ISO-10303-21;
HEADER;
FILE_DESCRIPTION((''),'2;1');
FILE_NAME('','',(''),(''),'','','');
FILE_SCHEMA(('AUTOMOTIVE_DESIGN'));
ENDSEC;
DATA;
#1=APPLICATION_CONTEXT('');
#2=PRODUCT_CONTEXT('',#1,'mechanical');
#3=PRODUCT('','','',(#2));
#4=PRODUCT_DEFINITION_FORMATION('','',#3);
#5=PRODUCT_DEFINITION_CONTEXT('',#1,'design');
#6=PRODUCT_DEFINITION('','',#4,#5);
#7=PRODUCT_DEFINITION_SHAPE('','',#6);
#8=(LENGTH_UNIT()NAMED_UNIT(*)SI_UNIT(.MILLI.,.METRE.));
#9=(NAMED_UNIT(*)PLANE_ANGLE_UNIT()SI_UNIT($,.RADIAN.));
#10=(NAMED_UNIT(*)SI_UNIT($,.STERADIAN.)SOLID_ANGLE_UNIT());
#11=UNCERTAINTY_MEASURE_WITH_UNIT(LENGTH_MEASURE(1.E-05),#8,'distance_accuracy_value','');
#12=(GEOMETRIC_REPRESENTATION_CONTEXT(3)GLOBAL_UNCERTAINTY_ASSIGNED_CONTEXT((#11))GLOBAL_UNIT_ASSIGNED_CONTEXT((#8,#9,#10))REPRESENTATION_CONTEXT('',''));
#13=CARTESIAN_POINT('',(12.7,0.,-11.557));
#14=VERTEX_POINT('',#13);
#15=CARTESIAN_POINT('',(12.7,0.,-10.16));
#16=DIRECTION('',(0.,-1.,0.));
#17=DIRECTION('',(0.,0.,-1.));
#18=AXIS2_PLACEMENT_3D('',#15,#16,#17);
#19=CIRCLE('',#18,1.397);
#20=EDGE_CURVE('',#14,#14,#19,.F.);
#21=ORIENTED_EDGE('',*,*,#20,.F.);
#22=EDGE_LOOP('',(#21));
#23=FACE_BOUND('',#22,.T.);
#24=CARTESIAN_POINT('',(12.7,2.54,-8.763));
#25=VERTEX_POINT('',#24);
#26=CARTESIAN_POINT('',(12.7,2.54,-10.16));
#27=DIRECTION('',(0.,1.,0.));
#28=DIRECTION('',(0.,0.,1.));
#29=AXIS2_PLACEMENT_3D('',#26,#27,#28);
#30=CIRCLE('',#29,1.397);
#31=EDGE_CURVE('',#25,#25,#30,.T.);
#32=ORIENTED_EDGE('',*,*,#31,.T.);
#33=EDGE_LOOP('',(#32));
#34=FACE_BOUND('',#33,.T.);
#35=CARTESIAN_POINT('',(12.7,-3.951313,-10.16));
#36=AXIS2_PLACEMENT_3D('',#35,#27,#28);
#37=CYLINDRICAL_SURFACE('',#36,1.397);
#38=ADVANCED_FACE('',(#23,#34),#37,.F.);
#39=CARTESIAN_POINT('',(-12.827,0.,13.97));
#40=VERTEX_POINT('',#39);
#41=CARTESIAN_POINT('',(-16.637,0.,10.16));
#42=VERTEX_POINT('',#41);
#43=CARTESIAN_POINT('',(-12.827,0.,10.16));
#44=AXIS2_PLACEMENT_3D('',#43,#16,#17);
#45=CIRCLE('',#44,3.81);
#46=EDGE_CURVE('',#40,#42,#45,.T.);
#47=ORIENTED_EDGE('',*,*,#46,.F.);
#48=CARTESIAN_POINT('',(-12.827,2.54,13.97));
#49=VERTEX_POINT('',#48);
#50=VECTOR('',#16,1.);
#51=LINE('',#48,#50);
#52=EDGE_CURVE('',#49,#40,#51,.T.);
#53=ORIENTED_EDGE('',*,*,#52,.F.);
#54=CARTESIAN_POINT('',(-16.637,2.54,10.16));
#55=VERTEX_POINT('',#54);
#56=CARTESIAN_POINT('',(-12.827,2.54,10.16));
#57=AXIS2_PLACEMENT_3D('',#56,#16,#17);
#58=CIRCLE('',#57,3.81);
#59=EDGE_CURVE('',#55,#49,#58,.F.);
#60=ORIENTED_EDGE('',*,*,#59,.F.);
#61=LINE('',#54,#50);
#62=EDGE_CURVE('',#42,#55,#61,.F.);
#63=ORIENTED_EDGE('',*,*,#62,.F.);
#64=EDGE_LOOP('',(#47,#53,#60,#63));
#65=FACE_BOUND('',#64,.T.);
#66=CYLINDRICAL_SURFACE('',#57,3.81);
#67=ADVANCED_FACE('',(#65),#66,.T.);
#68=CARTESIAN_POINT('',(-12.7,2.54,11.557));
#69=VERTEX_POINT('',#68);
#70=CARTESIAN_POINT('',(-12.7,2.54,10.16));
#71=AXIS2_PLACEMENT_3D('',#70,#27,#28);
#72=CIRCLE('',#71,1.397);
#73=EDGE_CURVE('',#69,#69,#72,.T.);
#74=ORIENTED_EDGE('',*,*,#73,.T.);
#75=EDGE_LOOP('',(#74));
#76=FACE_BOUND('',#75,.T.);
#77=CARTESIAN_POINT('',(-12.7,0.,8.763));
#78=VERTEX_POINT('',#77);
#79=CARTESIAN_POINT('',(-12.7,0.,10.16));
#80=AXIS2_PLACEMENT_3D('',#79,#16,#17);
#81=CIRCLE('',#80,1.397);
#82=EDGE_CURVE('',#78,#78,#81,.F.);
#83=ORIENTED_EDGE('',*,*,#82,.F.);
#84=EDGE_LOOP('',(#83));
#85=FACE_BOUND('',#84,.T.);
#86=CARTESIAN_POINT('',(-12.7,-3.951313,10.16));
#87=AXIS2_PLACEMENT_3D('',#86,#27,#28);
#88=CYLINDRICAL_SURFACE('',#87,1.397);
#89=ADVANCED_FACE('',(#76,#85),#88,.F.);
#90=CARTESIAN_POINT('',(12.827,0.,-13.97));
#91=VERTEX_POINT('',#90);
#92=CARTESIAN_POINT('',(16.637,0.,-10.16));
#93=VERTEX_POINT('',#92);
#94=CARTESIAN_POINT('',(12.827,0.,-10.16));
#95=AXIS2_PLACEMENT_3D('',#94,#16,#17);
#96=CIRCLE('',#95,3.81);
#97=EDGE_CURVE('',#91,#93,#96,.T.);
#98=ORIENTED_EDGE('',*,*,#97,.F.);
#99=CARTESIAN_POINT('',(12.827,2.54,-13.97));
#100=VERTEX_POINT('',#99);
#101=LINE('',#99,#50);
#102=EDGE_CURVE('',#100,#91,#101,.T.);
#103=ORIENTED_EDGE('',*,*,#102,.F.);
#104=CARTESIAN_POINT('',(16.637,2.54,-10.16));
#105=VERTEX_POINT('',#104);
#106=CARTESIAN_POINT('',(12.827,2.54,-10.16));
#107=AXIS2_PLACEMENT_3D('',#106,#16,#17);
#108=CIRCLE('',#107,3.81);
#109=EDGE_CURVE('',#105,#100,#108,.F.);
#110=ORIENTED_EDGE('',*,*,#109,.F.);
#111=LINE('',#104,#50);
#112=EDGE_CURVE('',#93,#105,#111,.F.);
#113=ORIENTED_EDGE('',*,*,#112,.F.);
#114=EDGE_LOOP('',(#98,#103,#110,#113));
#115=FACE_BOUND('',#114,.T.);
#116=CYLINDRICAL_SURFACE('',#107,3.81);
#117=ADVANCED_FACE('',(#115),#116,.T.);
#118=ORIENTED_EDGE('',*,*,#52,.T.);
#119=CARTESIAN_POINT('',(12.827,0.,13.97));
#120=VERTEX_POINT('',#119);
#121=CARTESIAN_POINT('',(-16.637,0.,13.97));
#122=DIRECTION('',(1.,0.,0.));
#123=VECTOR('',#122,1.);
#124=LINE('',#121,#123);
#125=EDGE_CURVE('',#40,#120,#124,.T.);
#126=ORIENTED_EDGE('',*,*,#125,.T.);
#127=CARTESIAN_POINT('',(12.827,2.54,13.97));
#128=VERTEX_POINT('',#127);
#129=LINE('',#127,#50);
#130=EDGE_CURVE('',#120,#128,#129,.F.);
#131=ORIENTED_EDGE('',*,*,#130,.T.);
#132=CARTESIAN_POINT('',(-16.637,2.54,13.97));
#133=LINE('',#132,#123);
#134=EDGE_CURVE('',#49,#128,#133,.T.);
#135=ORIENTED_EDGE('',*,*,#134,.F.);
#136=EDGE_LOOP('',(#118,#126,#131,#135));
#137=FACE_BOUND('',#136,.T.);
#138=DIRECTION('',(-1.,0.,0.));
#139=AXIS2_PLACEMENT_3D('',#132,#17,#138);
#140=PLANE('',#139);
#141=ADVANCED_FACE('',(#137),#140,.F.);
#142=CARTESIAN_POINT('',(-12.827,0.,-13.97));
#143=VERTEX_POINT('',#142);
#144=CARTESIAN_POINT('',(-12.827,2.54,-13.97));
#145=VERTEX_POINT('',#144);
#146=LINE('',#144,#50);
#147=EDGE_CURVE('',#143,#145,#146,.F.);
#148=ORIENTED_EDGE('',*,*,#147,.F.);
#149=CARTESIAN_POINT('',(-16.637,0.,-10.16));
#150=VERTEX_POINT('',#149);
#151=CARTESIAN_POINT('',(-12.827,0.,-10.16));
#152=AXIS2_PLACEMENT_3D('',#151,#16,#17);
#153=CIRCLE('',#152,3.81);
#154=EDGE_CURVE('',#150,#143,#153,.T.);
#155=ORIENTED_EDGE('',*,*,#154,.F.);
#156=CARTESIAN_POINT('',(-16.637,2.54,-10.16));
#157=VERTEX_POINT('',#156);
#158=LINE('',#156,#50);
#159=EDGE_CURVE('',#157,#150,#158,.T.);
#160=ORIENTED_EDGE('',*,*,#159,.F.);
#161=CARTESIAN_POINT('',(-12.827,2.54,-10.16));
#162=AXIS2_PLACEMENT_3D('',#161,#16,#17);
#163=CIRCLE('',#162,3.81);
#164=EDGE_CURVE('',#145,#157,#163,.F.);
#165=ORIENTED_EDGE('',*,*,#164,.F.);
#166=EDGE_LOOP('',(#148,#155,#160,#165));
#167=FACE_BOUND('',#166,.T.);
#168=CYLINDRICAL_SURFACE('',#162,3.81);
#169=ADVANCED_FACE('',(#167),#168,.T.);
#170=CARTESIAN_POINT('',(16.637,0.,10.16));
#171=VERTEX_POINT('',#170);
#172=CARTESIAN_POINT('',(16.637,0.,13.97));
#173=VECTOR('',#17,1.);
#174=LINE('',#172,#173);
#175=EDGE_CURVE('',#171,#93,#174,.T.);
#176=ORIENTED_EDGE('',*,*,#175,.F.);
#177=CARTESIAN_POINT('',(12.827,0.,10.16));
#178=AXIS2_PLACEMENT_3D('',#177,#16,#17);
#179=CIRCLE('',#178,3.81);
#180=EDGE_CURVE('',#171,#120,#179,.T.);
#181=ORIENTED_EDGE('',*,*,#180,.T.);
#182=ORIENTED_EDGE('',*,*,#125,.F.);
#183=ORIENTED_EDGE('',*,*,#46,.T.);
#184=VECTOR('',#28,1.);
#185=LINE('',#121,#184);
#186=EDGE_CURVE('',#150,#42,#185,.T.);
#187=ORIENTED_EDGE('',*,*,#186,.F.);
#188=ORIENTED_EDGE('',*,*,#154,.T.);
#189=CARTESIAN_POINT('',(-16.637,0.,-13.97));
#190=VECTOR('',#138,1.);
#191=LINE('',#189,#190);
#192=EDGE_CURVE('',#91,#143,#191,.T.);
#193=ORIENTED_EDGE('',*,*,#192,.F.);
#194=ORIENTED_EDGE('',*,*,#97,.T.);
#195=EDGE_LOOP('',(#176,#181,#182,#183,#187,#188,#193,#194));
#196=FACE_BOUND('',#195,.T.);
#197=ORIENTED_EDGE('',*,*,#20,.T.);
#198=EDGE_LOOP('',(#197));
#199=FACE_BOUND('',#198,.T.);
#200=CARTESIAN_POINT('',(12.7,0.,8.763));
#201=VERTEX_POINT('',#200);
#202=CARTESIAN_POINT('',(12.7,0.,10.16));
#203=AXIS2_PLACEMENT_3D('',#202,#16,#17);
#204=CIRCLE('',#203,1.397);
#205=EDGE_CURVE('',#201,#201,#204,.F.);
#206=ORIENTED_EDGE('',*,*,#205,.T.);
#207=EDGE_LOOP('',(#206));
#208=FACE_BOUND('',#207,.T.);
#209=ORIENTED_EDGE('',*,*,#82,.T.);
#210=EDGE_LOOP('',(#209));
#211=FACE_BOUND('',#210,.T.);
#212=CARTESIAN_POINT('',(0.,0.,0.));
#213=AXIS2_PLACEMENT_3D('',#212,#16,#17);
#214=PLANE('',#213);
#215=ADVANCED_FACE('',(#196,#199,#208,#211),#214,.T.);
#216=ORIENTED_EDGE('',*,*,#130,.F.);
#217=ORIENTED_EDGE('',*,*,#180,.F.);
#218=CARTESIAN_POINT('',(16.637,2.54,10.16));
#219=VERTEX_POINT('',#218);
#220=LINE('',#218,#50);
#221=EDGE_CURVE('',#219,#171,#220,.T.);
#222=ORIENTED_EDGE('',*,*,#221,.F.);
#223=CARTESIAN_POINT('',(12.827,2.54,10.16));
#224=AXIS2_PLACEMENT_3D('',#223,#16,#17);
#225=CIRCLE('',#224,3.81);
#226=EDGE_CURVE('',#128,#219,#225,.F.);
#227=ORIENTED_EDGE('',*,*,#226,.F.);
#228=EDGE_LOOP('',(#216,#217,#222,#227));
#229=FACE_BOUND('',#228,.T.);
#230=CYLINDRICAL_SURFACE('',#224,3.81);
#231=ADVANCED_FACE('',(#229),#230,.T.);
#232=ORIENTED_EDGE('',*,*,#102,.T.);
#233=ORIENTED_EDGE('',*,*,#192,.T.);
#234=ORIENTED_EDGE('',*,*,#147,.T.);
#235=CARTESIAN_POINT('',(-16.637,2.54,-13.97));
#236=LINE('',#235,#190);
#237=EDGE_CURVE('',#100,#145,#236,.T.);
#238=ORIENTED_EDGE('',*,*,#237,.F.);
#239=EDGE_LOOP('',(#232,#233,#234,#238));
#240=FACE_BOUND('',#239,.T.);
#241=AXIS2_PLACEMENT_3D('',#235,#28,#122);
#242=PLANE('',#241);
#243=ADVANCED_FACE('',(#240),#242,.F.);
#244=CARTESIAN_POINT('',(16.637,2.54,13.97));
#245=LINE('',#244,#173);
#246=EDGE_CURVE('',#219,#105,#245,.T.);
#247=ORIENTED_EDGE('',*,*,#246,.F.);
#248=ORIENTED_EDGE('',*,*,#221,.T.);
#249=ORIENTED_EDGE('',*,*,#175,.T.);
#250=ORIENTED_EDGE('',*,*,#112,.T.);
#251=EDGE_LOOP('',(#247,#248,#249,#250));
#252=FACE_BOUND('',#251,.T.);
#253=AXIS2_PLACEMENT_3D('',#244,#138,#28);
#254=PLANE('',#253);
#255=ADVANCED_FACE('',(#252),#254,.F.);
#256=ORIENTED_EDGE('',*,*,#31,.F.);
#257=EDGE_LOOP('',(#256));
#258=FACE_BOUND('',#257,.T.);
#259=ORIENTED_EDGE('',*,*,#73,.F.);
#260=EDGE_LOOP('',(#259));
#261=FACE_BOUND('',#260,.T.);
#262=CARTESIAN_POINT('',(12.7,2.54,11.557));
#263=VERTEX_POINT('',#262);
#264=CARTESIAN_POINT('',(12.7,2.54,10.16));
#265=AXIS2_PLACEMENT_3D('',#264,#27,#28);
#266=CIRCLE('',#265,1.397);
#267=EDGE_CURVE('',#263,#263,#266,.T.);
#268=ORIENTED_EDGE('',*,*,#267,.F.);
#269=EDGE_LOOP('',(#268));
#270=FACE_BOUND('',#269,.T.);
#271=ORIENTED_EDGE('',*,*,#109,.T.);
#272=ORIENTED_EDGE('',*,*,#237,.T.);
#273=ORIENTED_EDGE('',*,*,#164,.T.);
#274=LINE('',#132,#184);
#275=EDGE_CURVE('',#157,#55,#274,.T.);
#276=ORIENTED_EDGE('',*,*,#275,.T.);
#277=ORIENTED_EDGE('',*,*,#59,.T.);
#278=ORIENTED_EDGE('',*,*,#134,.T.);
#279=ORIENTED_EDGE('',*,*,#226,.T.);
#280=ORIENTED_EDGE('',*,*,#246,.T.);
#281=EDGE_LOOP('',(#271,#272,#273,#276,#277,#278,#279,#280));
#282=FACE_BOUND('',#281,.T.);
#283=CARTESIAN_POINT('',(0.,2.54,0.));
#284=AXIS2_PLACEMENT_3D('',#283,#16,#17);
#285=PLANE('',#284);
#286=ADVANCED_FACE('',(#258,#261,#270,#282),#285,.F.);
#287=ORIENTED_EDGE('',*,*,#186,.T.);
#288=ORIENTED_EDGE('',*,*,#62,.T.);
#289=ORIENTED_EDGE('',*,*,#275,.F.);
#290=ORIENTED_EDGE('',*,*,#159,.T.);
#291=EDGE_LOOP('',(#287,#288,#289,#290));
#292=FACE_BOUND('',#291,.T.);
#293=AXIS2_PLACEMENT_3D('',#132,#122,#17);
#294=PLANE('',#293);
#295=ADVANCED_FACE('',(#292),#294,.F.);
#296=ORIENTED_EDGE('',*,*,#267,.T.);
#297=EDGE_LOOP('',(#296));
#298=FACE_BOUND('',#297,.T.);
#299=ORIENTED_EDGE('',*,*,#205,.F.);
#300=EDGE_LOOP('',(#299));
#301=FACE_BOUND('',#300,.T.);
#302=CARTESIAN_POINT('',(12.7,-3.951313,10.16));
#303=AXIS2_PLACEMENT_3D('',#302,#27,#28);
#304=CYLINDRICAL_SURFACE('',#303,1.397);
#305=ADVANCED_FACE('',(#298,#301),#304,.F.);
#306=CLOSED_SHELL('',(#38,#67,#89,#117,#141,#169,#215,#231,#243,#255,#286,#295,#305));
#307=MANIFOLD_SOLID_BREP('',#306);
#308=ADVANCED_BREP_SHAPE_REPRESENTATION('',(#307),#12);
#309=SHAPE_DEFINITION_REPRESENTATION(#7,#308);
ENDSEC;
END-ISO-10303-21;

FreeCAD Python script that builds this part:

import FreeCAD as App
import Part
import Sketcher
Q = App.Units.Quantity


def edges_at(feature, points):
    """Names of the edges that pass closest to the given points."""
    edges = feature.Shape.Edges
    near = lambda p: min(range(len(edges)), key=lambda i: edges[i].distToShape(Part.Vertex(*p))[0])
    return sorted({f"Edge{near(p) + 1}" for p in points})

doc = App.newDocument("Part")
params = doc.addObject("Spreadsheet::Sheet", "Params")
for row, (alias, value) in enumerate([
    ("sketch1_height", "1.1 in"),
    ("sketch1_width", "1.31 in"),
    ("pad1_length", "0.1 in"),
    ("sketch2_diameter", "0.11 in"),
    ("pocket1_length", "0.1 in"),
    ("fillet_radius", "0.15 in"),
], start=1):
    params.set(f"A{row}", alias)
    params.set(f"B{row}", "=" + value)
    params.setAlias(f"B{row}", alias)

body = doc.addObject("PartDesign::Body", "Body")

sketch1 = body.newObject("Sketcher::SketchObject", "Sketch")
sketch1.AttachmentSupport = (doc.getObject("XZ_Plane"), [""])
sketch1.MapMode = "FlatFace"
sketch1.addGeometry(Part.LineSegment(App.Vector(-17, -14, 0), App.Vector(-17, 14, 0)), False)
sketch1.addGeometry(Part.LineSegment(App.Vector(-17, 14, 0), App.Vector(17, 14, 0)), False)
sketch1.addGeometry(Part.LineSegment(App.Vector(17, 14, 0), App.Vector(17, -14, 0)), False)
sketch1.addGeometry(Part.LineSegment(App.Vector(17, -14, 0), App.Vector(-17, -14, 0)), False)
sketch1.addConstraint(Sketcher.Constraint("Coincident", 0, 2, 1, 1))
sketch1.addConstraint(Sketcher.Constraint("Coincident", 1, 2, 2, 1))
sketch1.addConstraint(Sketcher.Constraint("Coincident", 2, 2, 3, 1))
sketch1.addConstraint(Sketcher.Constraint("Coincident", 3, 2, 0, 1))
sketch1.addConstraint(Sketcher.Constraint("Vertical", 0))
sketch1.addConstraint(Sketcher.Constraint("Horizontal", 1))
sketch1.addConstraint(Sketcher.Constraint("Vertical", 2))
sketch1.addConstraint(Sketcher.Constraint("Horizontal", 3))
sketch1.addConstraint(Sketcher.Constraint("Symmetric", 0, 2, 2, 2, -1, 1))
sketch1.addConstraint(Sketcher.Constraint("DistanceY", 0, 1, 0, 2, Q("1.1 in")))
sketch1.addConstraint(Sketcher.Constraint("DistanceX", 1, 1, 1, 2, Q("1.31 in")))
sketch1.setExpression("Constraints[9]", "Params.sketch1_height")
sketch1.setExpression("Constraints[10]", "Params.sketch1_width")
pad1 = body.newObject("PartDesign::Pad", "Pad")
pad1.Profile = sketch1
pad1.setExpression("Length", "Params.pad1_length")
pad1.Reversed = True

sketch2 = body.newObject("Sketcher::SketchObject", "Sketch001")
sketch2.AttachmentSupport = (doc.getObject("XZ_Plane"), [""])
sketch2.MapMode = "FlatFace"
sketch2.AttachmentOffset = App.Placement(App.Vector(0, 0, -0.1 * 25.4), App.Rotation())
sketch2.addGeometry(Part.Circle(App.Vector(12.7, 10.2, 0), App.Vector(0, 0, 1), 1.4), False)
sketch2.addGeometry(Part.Circle(App.Vector(-12.7, 10.2, 0), App.Vector(0, 0, 1), 1.4), False)
sketch2.addGeometry(Part.Circle(App.Vector(12.7, -10.2, 0), App.Vector(0, 0, 1), 1.4), False)
sketch2.addConstraint(Sketcher.Constraint("Equal", 0, 1))
sketch2.addConstraint(Sketcher.Constraint("Equal", 1, 2))
sketch2.addConstraint(Sketcher.Constraint("Symmetric", 1, 3, 2, 3, -1, 1))
sketch2.addConstraint(Sketcher.Constraint("Symmetric", 0, 3, 1, 3, -2))
sketch2.addConstraint(Sketcher.Constraint("Diameter", 0, Q("0.11 in")))
sketch2.addConstraint(Sketcher.Constraint("DistanceX", 1, 3, 0, 3, Q("1 in")))
sketch2.addConstraint(Sketcher.Constraint("DistanceY", -1, 1, 0, 3, Q("0.4 in")))
sketch2.setExpression("Constraints[4]", "Params.sketch2_diameter")
pocket1 = body.newObject("PartDesign::Pocket", "Pocket")
pocket1.Profile = sketch2
pocket1.setExpression("Length", "Params.pocket1_length")
pocket1.Reversed = True
doc.recompute()

fillet = body.newObject("PartDesign::Fillet", "Fillet")
fillet.Base = (pocket1, edges_at(pocket1, [
    (16.637, 1.27, 13.97),
    (-16.637, 1.27, 13.97),
    (-16.637, 1.27, -13.97),
    (16.637, 1.27, -13.97),
]))
fillet.setExpression("Radius", "Params.fillet_radius")

doc.recompute()
